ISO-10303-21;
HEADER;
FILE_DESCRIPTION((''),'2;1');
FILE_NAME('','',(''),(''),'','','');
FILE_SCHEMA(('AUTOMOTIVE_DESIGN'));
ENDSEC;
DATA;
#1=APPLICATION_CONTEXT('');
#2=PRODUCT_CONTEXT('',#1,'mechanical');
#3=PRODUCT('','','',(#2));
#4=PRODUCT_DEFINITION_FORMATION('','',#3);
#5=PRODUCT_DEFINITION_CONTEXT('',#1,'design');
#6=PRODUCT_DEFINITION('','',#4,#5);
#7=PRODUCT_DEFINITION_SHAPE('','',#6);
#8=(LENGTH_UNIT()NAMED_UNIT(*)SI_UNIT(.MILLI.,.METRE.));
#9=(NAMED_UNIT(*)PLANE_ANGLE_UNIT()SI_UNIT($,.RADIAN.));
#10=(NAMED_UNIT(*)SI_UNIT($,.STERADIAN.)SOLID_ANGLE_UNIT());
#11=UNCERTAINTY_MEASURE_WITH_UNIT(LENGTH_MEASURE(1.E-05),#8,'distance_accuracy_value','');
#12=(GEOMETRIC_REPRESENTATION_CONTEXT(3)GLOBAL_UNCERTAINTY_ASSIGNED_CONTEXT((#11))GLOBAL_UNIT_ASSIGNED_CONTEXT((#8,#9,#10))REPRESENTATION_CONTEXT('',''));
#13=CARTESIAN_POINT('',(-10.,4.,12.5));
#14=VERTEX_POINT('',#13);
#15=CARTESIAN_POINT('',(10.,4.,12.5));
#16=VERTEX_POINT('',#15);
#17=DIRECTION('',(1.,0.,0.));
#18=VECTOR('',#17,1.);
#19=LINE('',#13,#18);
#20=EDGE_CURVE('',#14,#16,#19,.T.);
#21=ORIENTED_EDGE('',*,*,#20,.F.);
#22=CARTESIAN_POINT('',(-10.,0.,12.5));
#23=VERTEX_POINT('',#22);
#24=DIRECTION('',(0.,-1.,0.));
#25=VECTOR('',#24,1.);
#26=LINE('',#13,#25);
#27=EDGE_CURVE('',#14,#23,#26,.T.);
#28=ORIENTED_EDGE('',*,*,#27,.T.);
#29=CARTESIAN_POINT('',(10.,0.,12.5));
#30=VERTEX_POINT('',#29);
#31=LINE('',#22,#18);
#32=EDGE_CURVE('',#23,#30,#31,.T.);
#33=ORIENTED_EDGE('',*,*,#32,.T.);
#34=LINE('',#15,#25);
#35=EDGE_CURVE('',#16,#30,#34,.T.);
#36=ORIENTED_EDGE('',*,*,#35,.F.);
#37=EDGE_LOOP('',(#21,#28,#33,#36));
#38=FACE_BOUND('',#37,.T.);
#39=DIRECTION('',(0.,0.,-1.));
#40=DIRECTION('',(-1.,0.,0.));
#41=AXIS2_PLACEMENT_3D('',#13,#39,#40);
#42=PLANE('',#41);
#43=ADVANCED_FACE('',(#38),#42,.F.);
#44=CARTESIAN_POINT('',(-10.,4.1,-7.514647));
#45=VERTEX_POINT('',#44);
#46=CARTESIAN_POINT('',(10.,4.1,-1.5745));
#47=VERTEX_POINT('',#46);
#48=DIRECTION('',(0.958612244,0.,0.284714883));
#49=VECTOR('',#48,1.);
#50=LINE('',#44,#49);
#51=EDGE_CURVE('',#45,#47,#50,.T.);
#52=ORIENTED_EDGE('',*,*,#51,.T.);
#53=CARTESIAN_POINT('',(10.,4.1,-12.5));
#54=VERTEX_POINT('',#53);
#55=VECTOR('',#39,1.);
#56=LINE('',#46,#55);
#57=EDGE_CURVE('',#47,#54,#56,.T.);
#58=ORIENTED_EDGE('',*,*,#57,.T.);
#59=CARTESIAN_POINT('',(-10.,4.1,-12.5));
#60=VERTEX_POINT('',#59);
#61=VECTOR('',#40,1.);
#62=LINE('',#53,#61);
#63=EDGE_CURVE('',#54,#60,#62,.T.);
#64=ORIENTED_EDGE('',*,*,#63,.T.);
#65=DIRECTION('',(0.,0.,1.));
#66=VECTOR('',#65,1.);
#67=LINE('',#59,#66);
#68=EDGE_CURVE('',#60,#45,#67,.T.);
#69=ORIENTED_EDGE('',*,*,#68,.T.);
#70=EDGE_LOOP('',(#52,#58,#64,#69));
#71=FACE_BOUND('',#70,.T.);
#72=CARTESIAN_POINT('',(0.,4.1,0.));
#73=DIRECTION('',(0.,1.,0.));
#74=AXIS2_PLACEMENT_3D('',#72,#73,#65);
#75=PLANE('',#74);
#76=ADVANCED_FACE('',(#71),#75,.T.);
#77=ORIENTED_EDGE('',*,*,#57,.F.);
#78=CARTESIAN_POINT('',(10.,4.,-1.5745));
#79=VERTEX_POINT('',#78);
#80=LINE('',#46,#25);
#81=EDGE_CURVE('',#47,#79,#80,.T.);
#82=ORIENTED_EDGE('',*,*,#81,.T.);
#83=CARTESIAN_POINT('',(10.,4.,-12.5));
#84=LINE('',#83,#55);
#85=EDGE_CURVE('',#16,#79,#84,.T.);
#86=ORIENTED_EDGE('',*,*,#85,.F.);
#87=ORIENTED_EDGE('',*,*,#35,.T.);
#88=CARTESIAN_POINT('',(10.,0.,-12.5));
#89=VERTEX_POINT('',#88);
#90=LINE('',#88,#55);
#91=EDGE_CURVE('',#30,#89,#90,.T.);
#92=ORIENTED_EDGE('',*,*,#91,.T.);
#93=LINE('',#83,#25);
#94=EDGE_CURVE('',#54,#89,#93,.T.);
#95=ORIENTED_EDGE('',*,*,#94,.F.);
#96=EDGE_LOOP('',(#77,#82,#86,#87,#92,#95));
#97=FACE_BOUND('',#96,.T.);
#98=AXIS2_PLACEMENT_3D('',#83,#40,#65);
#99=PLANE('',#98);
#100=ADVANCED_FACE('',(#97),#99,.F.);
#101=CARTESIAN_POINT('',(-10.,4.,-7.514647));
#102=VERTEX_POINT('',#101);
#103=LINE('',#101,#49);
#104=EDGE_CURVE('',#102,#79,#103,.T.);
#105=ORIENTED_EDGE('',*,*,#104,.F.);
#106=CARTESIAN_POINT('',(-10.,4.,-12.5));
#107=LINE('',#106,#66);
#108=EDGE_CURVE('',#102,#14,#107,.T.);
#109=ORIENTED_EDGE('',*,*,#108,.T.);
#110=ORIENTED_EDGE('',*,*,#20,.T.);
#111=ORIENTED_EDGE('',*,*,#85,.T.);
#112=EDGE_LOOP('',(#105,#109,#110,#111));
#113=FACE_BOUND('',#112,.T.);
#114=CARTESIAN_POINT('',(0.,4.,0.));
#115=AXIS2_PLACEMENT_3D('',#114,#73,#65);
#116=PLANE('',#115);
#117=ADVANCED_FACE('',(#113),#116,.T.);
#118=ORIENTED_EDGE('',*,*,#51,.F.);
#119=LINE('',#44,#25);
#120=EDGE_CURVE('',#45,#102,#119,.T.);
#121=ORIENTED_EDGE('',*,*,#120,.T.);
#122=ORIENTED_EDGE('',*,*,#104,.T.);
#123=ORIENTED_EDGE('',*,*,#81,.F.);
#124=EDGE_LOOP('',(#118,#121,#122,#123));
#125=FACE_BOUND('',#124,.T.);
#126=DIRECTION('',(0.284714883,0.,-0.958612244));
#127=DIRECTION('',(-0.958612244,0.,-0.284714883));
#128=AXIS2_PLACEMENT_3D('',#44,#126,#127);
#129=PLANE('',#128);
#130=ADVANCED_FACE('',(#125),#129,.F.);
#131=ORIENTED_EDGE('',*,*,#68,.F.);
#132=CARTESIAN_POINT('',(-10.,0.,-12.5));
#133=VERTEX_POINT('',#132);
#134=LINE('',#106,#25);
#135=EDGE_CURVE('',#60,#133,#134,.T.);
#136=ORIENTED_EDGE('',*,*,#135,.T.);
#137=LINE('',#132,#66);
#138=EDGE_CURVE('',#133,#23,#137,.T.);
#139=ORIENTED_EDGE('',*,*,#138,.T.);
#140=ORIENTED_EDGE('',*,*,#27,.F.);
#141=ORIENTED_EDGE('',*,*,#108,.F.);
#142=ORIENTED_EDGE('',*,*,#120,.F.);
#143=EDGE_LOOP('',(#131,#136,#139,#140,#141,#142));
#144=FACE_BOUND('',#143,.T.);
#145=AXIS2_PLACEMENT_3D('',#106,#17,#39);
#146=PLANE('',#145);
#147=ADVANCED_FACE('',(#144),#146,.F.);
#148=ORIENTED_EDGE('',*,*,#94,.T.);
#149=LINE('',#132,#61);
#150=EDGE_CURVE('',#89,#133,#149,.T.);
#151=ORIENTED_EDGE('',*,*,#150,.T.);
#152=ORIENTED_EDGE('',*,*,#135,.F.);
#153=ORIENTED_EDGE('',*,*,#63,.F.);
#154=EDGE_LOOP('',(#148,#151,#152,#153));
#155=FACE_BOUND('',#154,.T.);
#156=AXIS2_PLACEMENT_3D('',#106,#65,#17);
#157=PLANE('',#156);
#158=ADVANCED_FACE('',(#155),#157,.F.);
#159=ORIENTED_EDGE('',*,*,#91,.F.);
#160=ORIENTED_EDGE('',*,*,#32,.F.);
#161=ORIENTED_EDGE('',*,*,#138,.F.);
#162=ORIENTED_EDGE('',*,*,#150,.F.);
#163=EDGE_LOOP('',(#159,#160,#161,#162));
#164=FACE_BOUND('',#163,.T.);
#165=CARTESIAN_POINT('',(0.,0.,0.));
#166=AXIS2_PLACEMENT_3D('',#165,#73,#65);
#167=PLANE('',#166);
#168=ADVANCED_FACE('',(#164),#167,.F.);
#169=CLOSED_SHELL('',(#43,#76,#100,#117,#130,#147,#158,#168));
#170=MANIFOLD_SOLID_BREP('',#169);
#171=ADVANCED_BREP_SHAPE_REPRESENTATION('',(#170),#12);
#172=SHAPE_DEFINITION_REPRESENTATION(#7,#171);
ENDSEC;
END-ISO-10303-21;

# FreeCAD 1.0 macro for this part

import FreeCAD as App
import Part
import Sketcher

doc = App.newDocument("Part")
body = doc.addObject("PartDesign::Body", "Body")

# Sketch on XZ plane
sketch1 = body.newObject("Sketcher::SketchObject", "Sketch")
sketch1.AttachmentSupport = (doc.getObject("XZ_Plane"), [""])
sketch1.MapMode = "FlatFace"
sketch1.addGeometry(Part.LineSegment(App.Vector(-10, -12.5, 0), App.Vector(-10, 12.5, 0)), False)
sketch1.addGeometry(Part.LineSegment(App.Vector(-10, 12.5, 0), App.Vector(10, 12.5, 0)), False)
sketch1.addGeometry(Part.LineSegment(App.Vector(10, 12.5, 0), App.Vector(10, -12.5, 0)), False)
sketch1.addGeometry(Part.LineSegment(App.Vector(10, -12.5, 0), App.Vector(-10, -12.5, 0)), False)
sketch1.addConstraint(Sketcher.Constraint("Coincident", 0, 2, 1, 1))
sketch1.addConstraint(Sketcher.Constraint("Coincident", 1, 2, 2, 1))
sketch1.addConstraint(Sketcher.Constraint("Coincident", 2, 2, 3, 1))
sketch1.addConstraint(Sketcher.Constraint("Coincident", 3, 2, 0, 1))
sketch1.addConstraint(Sketcher.Constraint("Vertical", 0))
sketch1.addConstraint(Sketcher.Constraint("Horizontal", 1))
sketch1.addConstraint(Sketcher.Constraint("Vertical", 2))
sketch1.addConstraint(Sketcher.Constraint("Horizontal", 3))
sketch1.addConstraint(Sketcher.Constraint("Symmetric", 0, 2, 2, 2, -1, 1))
sketch1.addConstraint(Sketcher.Constraint("DistanceX", 1, 1, 1, 2, 20.0))
sketch1.addConstraint(Sketcher.Constraint("DistanceY", 0, 1, 0, 2, 25.0))
pad1 = body.newObject("PartDesign::Pad", "Pad")
pad1.Profile = sketch1
pad1.Length = 4
pad1.Reversed = True

# Sketch on XZ plane
sketch2 = body.newObject("Sketcher::SketchObject", "Sketch001")
sketch2.AttachmentSupport = (doc.getObject("XZ_Plane"), [""])
sketch2.MapMode = "FlatFace"
sketch2.AttachmentOffset = App.Placement(App.Vector(0, 0, -4), App.Rotation())
sketch2.addGeometry(Part.LineSegment(App.Vector(-10, -12.5, 0), App.Vector(-10, -7.514647, 0)), False)
sketch2.addGeometry(Part.LineSegment(App.Vector(-10, -7.514647, 0), App.Vector(10, -1.5745, 0)), False)
sketch2.addGeometry(Part.LineSegment(App.Vector(10, -1.5745, 0), App.Vector(10, -12.5, 0)), False)
sketch2.addGeometry(Part.LineSegment(App.Vector(10, -12.5, 0), App.Vector(-10, -12.5, 0)), False)
sketch2.addConstraint(Sketcher.Constraint("Coincident", 0, 2, 1, 1))
sketch2.addConstraint(Sketcher.Constraint("Coincident", 1, 2, 2, 1))
sketch2.addConstraint(Sketcher.Constraint("Coincident", 2, 2, 3, 1))
sketch2.addConstraint(Sketcher.Constraint("Coincident", 3, 2, 0, 1))
sketch2.addConstraint(Sketcher.Constraint("Vertical", 0))
sketch2.addConstraint(Sketcher.Constraint("Vertical", 2))
sketch2.addConstraint(Sketcher.Constraint("Horizontal", 3))
sketch2.addConstraint(Sketcher.Constraint("DistanceX", 3, 2, 3, 1, 20.0))
sketch2.addConstraint(Sketcher.Constraint("DistanceX", 0, 2, -1, 1, 10.0))
sketch2.addConstraint(Sketcher.Constraint("DistanceY", 2, 2, -1, 1, 12.5))
sketch2.addConstraint(Sketcher.Constraint("DistanceY", 2, 2, 2, 1, 10.9255))
sketch2.addConstraint(Sketcher.Constraint("DistanceY", 0, 1, 0, 2, 4.985353))
pad2 = body.newObject("PartDesign::Pad", "Pad001")
pad2.Profile = sketch2
pad2.Length = 0.1
pad2.Reversed = True

doc.recompute()
